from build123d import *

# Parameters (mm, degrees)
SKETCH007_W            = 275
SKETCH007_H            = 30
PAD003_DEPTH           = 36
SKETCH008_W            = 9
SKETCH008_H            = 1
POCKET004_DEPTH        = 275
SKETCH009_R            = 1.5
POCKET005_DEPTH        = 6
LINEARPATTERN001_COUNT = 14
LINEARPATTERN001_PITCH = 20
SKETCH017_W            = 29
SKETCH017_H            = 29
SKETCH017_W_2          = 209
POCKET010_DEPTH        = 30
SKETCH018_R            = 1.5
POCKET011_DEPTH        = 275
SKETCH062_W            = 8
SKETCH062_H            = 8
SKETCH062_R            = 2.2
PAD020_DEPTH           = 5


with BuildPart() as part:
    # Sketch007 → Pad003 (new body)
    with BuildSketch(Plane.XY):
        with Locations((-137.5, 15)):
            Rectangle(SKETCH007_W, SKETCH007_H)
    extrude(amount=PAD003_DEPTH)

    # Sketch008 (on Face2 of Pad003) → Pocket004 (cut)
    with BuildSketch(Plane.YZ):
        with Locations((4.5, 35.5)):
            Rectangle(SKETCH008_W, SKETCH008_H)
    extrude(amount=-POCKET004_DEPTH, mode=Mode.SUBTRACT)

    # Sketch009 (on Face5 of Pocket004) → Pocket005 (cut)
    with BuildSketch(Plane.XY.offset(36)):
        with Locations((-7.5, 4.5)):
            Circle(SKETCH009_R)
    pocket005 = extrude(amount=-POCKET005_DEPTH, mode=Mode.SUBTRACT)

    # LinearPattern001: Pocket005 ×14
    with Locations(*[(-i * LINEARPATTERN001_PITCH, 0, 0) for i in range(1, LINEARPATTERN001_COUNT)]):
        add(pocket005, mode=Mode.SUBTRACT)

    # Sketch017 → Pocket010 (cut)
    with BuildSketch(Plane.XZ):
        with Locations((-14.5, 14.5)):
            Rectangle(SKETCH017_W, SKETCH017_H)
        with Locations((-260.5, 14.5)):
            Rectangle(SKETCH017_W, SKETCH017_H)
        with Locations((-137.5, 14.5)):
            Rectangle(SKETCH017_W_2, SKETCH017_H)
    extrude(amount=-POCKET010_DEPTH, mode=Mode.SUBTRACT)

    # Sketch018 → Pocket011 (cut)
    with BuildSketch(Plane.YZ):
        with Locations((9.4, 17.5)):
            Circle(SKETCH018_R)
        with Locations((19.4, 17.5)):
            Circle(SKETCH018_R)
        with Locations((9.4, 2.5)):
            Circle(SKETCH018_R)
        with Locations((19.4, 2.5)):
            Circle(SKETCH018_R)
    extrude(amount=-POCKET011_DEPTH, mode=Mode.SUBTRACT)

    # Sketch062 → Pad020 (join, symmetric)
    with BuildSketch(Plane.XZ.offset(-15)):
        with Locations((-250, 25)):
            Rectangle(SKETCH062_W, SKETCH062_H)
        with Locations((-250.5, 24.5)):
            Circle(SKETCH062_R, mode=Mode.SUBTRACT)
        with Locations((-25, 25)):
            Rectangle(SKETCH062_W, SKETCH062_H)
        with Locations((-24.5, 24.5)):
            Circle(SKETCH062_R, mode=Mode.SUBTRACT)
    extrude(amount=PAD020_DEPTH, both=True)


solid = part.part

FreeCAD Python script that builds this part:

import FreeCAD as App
import Part
import Sketcher

V = App.Vector
Q = App.Units.Quantity

doc = App.newDocument("Part")
body = doc.addObject("PartDesign::Body", "Body")

# Sketch on XY plane
sketch1 = doc.addObject("Sketcher::SketchObject", "Sketch")
body.addObject(sketch1)
sketch1.AttachmentSupport = (doc.XY_Plane, [""])
sketch1.MapMode = "FlatFace"
sketch1.addGeometry(Part.LineSegment(V(-275, 30, 0), V(-275, 0, 0)), False)
sketch1.addGeometry(Part.LineSegment(V(-275, 0, 0), V(0, 0, 0)), False)
sketch1.addGeometry(Part.LineSegment(V(0, 0, 0), V(0, 30, 0)), False)
sketch1.addGeometry(Part.LineSegment(V(0, 30, 0), V(-275, 30, 0)), False)
sketch1.addConstraint(Sketcher.Constraint("Coincident", 0, 2, 1, 1))
sketch1.addConstraint(Sketcher.Constraint("Coincident", 1, 2, 2, 1))
sketch1.addConstraint(Sketcher.Constraint("Coincident", 2, 2, 3, 1))
sketch1.addConstraint(Sketcher.Constraint("Coincident", 3, 2, 0, 1))
sketch1.addConstraint(Sketcher.Constraint("Vertical", 0))
sketch1.addConstraint(Sketcher.Constraint("Horizontal", 1))
sketch1.addConstraint(Sketcher.Constraint("Vertical", 2))
sketch1.addConstraint(Sketcher.Constraint("Horizontal", 3))
sketch1.addConstraint(Sketcher.Constraint("Coincident", 1, 2, -1, 1))
sketch1.addConstraint(Sketcher.Constraint("DistanceX", 1, 1, 1, 2, Q("275 mm")))
sketch1.addConstraint(Sketcher.Constraint("DistanceY", 0, 2, 0, 1, Q("30 mm")))
pad1 = doc.addObject("PartDesign::Pad", "Pad")
body.addObject(pad1)
pad1.Profile = sketch1
pad1.Length = 36

# Sketch on YZ plane
sketch2 = doc.addObject("Sketcher::SketchObject", "Sketch001")
body.addObject(sketch2)
sketch2.AttachmentSupport = (doc.YZ_Plane, [""])
sketch2.MapMode = "FlatFace"
sketch2.addGeometry(Part.LineSegment(V(0, 36, 0), V(0, 35, 0)), False)
sketch2.addGeometry(Part.LineSegment(V(0, 35, 0), V(9, 35, 0)), False)
sketch2.addGeometry(Part.LineSegment(V(9, 35, 0), V(9, 36, 0)), False)
sketch2.addGeometry(Part.LineSegment(V(9, 36, 0), V(0, 36, 0)), False)
sketch2.addConstraint(Sketcher.Constraint("Coincident", 0, 2, 1, 1))
sketch2.addConstraint(Sketcher.Constraint("Coincident", 1, 2, 2, 1))
sketch2.addConstraint(Sketcher.Constraint("Coincident", 2, 2, 3, 1))
sketch2.addConstraint(Sketcher.Constraint("Coincident", 3, 2, 0, 1))
sketch2.addConstraint(Sketcher.Constraint("Vertical", 0))
sketch2.addConstraint(Sketcher.Constraint("Horizontal", 1))
sketch2.addConstraint(Sketcher.Constraint("Vertical", 2))
sketch2.addConstraint(Sketcher.Constraint("Horizontal", 3))
sketch2.addConstraint(Sketcher.Constraint("PointOnObject", 0, 2, -2))
sketch2.addConstraint(Sketcher.Constraint("DistanceX", 1, 1, 1, 2, Q("9 mm")))
sketch2.addConstraint(Sketcher.Constraint("DistanceY", 0, 2, 0, 1, Q("1 mm")))
sketch2.addConstraint(Sketcher.Constraint("DistanceY", -1, 1, 0, 2, Q("35 mm")))
pocket1 = doc.addObject("PartDesign::Pocket", "Pocket")
body.addObject(pocket1)
pocket1.Profile = sketch2
pocket1.Length = 275

# Sketch on XY plane
sketch3 = doc.addObject("Sketcher::SketchObject", "Sketch002")
body.addObject(sketch3)
sketch3.AttachmentSupport = (doc.XY_Plane, [""])
sketch3.MapMode = "FlatFace"
sketch3.AttachmentOffset = App.Placement(V(0, 0, 36), App.Rotation())
sketch3.addGeometry(Part.Circle(V(-7.5, 4.5, 0), V(0, 0, 1), 1.5), False)
sketch3.addConstraint(Sketcher.Constraint("Diameter", 0, Q("3 mm")))
sketch3.addConstraint(Sketcher.Constraint("DistanceX", 0, 3, -1, 1, Q("7.5 mm")))
sketch3.addConstraint(Sketcher.Constraint("DistanceY", -1, 1, 0, 3, Q("4.5 mm")))
pocket2 = doc.addObject("PartDesign::Pocket", "Pocket001")
body.addObject(pocket2)
pocket2.Profile = sketch3
pocket2.Length = 6
doc.recompute()

linearpattern = doc.addObject("PartDesign::LinearPattern", "LinearPattern")
body.addObject(linearpattern)
linearpattern.Originals = [pocket2]
linearpattern.Direction = (doc.X_Axis, [""])
linearpattern.Mode = "offset"
linearpattern.Offset = 20
linearpattern.Occurrences = 14
linearpattern.Reversed = True
body.Tip = linearpattern

# Sketch on XZ plane
sketch4 = doc.addObject("Sketcher::SketchObject", "Sketch003")
body.addObject(sketch4)
sketch4.AttachmentSupport = (doc.XZ_Plane, [""])
sketch4.MapMode = "FlatFace"
sketch4.addGeometry(Part.LineSegment(V(-29, 29, 0), V(-29, 0, 0)), False)
sketch4.addGeometry(Part.LineSegment(V(-29, 0, 0), V(0, 0, 0)), False)
sketch4.addGeometry(Part.LineSegment(V(0, 0, 0), V(0, 29, 0)), False)
sketch4.addGeometry(Part.LineSegment(V(0, 29, 0), V(-29, 29, 0)), False)
sketch4.addGeometry(Part.LineSegment(V(-275, 29, 0), V(-275, 0, 0)), False)
sketch4.addGeometry(Part.LineSegment(V(-275, 0, 0), V(-246, 0, 0)), False)
sketch4.addGeometry(Part.LineSegment(V(-246, 0, 0), V(-246, 29, 0)), False)
sketch4.addGeometry(Part.LineSegment(V(-246, 29, 0), V(-275, 29, 0)), False)
sketch4.addGeometry(Part.LineSegment(V(-242, 29, 0), V(-242, 0, 0)), False)
sketch4.addGeometry(Part.LineSegment(V(-242, 0, 0), V(-33, 0, 0)), False)
sketch4.addGeometry(Part.LineSegment(V(-33, 0, 0), V(-33, 29, 0)), False)
sketch4.addGeometry(Part.LineSegment(V(-33, 29, 0), V(-242, 29, 0)), False)
sketch4.addConstraint(Sketcher.Constraint("Coincident", 0, 2, 1, 1))
sketch4.addConstraint(Sketcher.Constraint("Coincident", 1, 2, 2, 1))
sketch4.addConstraint(Sketcher.Constraint("Coincident", 2, 2, 3, 1))
sketch4.addConstraint(Sketcher.Constraint("Coincident", 3, 2, 0, 1))
sketch4.addConstraint(Sketcher.Constraint("Coincident", 4, 2, 5, 1))
sketch4.addConstraint(Sketcher.Constraint("Coincident", 5, 2, 6, 1))
sketch4.addConstraint(Sketcher.Constraint("Coincident", 6, 2, 7, 1))
sketch4.addConstraint(Sketcher.Constraint("Coincident", 7, 2, 4, 1))
sketch4.addConstraint(Sketcher.Constraint("Coincident", 8, 2, 9, 1))
sketch4.addConstraint(Sketcher.Constraint("Coincident", 9, 2, 10, 1))
sketch4.addConstraint(Sketcher.Constraint("Coincident", 10, 2, 11, 1))
sketch4.addConstraint(Sketcher.Constraint("Coincident", 11, 2, 8, 1))
sketch4.addConstraint(Sketcher.Constraint("Vertical", 0))
sketch4.addConstraint(Sketcher.Constraint("Horizontal", 1))
sketch4.addConstraint(Sketcher.Constraint("Vertical", 2))
sketch4.addConstraint(Sketcher.Constraint("Horizontal", 3))
sketch4.addConstraint(Sketcher.Constraint("Vertical", 4))
sketch4.addConstraint(Sketcher.Constraint("Horizontal", 5))
sketch4.addConstraint(Sketcher.Constraint("Vertical", 6))
sketch4.addConstraint(Sketcher.Constraint("Horizontal", 7))
sketch4.addConstraint(Sketcher.Constraint("Vertical", 8))
sketch4.addConstraint(Sketcher.Constraint("Horizontal", 9))
sketch4.addConstraint(Sketcher.Constraint("Vertical", 10))
sketch4.addConstraint(Sketcher.Constraint("Horizontal", 11))
sketch4.addConstraint(Sketcher.Constraint("Coincident", 1, 2, -1, 1))
sketch4.addConstraint(Sketcher.Constraint("PointOnObject", 4, 2, -1))
sketch4.addConstraint(Sketcher.Constraint("PointOnObject", 8, 2, -1))
sketch4.addConstraint(Sketcher.Constraint("Horizontal", 3, 2, 6, 2))
sketch4.addConstraint(Sketcher.Constraint("Horizontal", 7, 2, 10, 2))
sketch4.addConstraint(Sketcher.Constraint("Equal", 3, 5))
sketch4.addConstraint(Sketcher.Constraint("Equal", 7, 0))
sketch4.addConstraint(Sketcher.Constraint("DistanceX", 1, 1, 1, 2, Q("29 mm")))
sketch4.addConstraint(Sketcher.Constraint("DistanceX", 9, 1, 9, 2, Q("209 mm")))
sketch4.addConstraint(Sketcher.Constraint("DistanceX", 4, 2, -1, 1, Q("275 mm")))
sketch4.addConstraint(Sketcher.Constraint("DistanceX", 8, 2, -1, 1, Q("242 mm")))
pocket3 = doc.addObject("PartDesign::Pocket", "Pocket002")
body.addObject(pocket3)
pocket3.Profile = sketch4
pocket3.Length = 30

# Sketch on YZ plane
sketch5 = doc.addObject("Sketcher::SketchObject", "Sketch004")
body.addObject(sketch5)
sketch5.AttachmentSupport = (doc.YZ_Plane, [""])
sketch5.MapMode = "FlatFace"
sketch5.addGeometry(Part.Circle(V(9.4, 17.5, 0), V(0, 0, 1), 1.5), False)
sketch5.addGeometry(Part.Circle(V(19.4, 17.5, 0), V(0, 0, 1), 1.5), False)
sketch5.addGeometry(Part.Circle(V(9.4, 2.5, 0), V(0, 0, 1), 1.5), False)
sketch5.addGeometry(Part.Circle(V(19.4, 2.5, 0), V(0, 0, 1), 1.5), False)
sketch5.addConstraint(Sketcher.Constraint("Equal", 0, 1))
sketch5.addConstraint(Sketcher.Constraint("Equal", 1, 2))
sketch5.addConstraint(Sketcher.Constraint("Equal", 2, 3))
sketch5.addConstraint(Sketcher.Constraint("Horizontal", 0, 3, 1, 3))
sketch5.addConstraint(Sketcher.Constraint("Horizontal", 2, 3, 3, 3))
sketch5.addConstraint(Sketcher.Constraint("Vertical", 0, 3, 2, 3))
sketch5.addConstraint(Sketcher.Constraint("Vertical", 1, 3, 3, 3))
sketch5.addConstraint(Sketcher.Constraint("Diameter", 0, Q("3 mm")))
sketch5.addConstraint(Sketcher.Constraint("DistanceX", 0, 3, 1, 3, Q("10 mm")))
sketch5.addConstraint(Sketcher.Constraint("DistanceY", 2, 3, 0, 3, Q("15 mm")))
sketch5.addConstraint(Sketcher.Constraint("DistanceX", -1, 1, 0, 3, Q("9.4 mm")))
sketch5.addConstraint(Sketcher.Constraint("DistanceY", -1, 1, 0, 3, Q("17.5 mm")))
pocket4 = doc.addObject("PartDesign::Pocket", "Pocket003")
body.addObject(pocket4)
pocket4.Profile = sketch5
pocket4.Length = 275

# Sketch on XZ plane
sketch6 = doc.addObject("Sketcher::SketchObject", "Sketch005")
body.addObject(sketch6)
sketch6.AttachmentSupport = (doc.XZ_Plane, [""])
sketch6.MapMode = "FlatFace"
sketch6.AttachmentOffset = App.Placement(V(0, 0, -15), App.Rotation())
sketch6.addGeometry(Part.LineSegment(V(-254, 29, 0), V(-254, 21, 0)), False)
sketch6.addGeometry(Part.LineSegment(V(-254, 21, 0), V(-246, 21, 0)), False)
sketch6.addGeometry(Part.LineSegment(V(-246, 21, 0), V(-246, 29, 0)), False)
sketch6.addGeometry(Part.LineSegment(V(-246, 29, 0), V(-254, 29, 0)), False)
sketch6.addGeometry(Part.Circle(V(-250.5, 24.5, 0), V(0, 0, 1), 2.2), False)
sketch6.addGeometry(Part.LineSegment(V(-29, 29, 0), V(-29, 21, 0)), False)
sketch6.addGeometry(Part.LineSegment(V(-29, 21, 0), V(-21, 21, 0)), False)
sketch6.addGeometry(Part.LineSegment(V(-21, 21, 0), V(-21, 29, 0)), False)
sketch6.addGeometry(Part.LineSegment(V(-21, 29, 0), V(-29, 29, 0)), False)
sketch6.addGeometry(Part.Circle(V(-24.5, 24.5, 0), V(0, 0, 1), 2.2), False)
sketch6.addConstraint(Sketcher.Constraint("Coincident", 0, 2, 1, 1))
sketch6.addConstraint(Sketcher.Constraint("Coincident", 1, 2, 2, 1))
sketch6.addConstraint(Sketcher.Constraint("Coincident", 2, 2, 3, 1))
sketch6.addConstraint(Sketcher.Constraint("Coincident", 3, 2, 0, 1))
sketch6.addConstraint(Sketcher.Constraint("Coincident", 5, 2, 6, 1))
sketch6.addConstraint(Sketcher.Constraint("Coincident", 6, 2, 7, 1))
sketch6.addConstraint(Sketcher.Constraint("Coincident", 7, 2, 8, 1))
sketch6.addConstraint(Sketcher.Constraint("Coincident", 8, 2, 5, 1))
sketch6.addConstraint(Sketcher.Constraint("Vertical", 0))
sketch6.addConstraint(Sketcher.Constraint("Horizontal", 1))
sketch6.addConstraint(Sketcher.Constraint("Vertical", 2))
sketch6.addConstraint(Sketcher.Constraint("Horizontal", 3))
sketch6.addConstraint(Sketcher.Constraint("Vertical", 5))
sketch6.addConstraint(Sketcher.Constraint("Horizontal", 6))
sketch6.addConstraint(Sketcher.Constraint("Vertical", 7))
sketch6.addConstraint(Sketcher.Constraint("Horizontal", 8))
sketch6.addConstraint(Sketcher.Constraint("Equal", 4, 9))
sketch6.addConstraint(Sketcher.Constraint("Horizontal", 4, 3, 9, 3))
sketch6.addConstraint(Sketcher.Constraint("Horizontal", 1, 2, 5, 2))
sketch6.addConstraint(Sketcher.Constraint("Horizontal", 3, 2, 7, 2))
sketch6.addConstraint(Sketcher.Constraint("Equal", 3, 6))
sketch6.addConstraint(Sketcher.Constraint("Equal", 8, 0))
sketch6.addConstraint(Sketcher.Constraint("Diameter", 4, Q("4.4 mm")))
sketch6.addConstraint(Sketcher.Constraint("DistanceX", 1, 1, 1, 2, Q("8 mm")))
sketch6.addConstraint(Sketcher.Constraint("DistanceX", 0, 2, -1, 1, Q("254 mm")))
sketch6.addConstraint(Sketcher.Constraint("DistanceY", -1, 1, 0, 2, Q("21 mm")))
sketch6.addConstraint(Sketcher.Constraint("DistanceX", 5, 2, -1, 1, Q("29 mm")))
sketch6.addConstraint(Sketcher.Constraint("DistanceX", 4, 3, 9, 3, Q("226 mm")))
sketch6.addConstraint(Sketcher.Constraint("DistanceX", 4, 3, -1, 1, Q("250.5 mm")))
sketch6.addConstraint(Sketcher.Constraint("DistanceY", -1, 1, 4, 3, Q("24.5 mm")))
pad2 = doc.addObject("PartDesign::Pad", "Pad001")
body.addObject(pad2)
pad2.Profile = sketch6
pad2.Length = 10
pad2.Midplane = True

doc.recompute()
